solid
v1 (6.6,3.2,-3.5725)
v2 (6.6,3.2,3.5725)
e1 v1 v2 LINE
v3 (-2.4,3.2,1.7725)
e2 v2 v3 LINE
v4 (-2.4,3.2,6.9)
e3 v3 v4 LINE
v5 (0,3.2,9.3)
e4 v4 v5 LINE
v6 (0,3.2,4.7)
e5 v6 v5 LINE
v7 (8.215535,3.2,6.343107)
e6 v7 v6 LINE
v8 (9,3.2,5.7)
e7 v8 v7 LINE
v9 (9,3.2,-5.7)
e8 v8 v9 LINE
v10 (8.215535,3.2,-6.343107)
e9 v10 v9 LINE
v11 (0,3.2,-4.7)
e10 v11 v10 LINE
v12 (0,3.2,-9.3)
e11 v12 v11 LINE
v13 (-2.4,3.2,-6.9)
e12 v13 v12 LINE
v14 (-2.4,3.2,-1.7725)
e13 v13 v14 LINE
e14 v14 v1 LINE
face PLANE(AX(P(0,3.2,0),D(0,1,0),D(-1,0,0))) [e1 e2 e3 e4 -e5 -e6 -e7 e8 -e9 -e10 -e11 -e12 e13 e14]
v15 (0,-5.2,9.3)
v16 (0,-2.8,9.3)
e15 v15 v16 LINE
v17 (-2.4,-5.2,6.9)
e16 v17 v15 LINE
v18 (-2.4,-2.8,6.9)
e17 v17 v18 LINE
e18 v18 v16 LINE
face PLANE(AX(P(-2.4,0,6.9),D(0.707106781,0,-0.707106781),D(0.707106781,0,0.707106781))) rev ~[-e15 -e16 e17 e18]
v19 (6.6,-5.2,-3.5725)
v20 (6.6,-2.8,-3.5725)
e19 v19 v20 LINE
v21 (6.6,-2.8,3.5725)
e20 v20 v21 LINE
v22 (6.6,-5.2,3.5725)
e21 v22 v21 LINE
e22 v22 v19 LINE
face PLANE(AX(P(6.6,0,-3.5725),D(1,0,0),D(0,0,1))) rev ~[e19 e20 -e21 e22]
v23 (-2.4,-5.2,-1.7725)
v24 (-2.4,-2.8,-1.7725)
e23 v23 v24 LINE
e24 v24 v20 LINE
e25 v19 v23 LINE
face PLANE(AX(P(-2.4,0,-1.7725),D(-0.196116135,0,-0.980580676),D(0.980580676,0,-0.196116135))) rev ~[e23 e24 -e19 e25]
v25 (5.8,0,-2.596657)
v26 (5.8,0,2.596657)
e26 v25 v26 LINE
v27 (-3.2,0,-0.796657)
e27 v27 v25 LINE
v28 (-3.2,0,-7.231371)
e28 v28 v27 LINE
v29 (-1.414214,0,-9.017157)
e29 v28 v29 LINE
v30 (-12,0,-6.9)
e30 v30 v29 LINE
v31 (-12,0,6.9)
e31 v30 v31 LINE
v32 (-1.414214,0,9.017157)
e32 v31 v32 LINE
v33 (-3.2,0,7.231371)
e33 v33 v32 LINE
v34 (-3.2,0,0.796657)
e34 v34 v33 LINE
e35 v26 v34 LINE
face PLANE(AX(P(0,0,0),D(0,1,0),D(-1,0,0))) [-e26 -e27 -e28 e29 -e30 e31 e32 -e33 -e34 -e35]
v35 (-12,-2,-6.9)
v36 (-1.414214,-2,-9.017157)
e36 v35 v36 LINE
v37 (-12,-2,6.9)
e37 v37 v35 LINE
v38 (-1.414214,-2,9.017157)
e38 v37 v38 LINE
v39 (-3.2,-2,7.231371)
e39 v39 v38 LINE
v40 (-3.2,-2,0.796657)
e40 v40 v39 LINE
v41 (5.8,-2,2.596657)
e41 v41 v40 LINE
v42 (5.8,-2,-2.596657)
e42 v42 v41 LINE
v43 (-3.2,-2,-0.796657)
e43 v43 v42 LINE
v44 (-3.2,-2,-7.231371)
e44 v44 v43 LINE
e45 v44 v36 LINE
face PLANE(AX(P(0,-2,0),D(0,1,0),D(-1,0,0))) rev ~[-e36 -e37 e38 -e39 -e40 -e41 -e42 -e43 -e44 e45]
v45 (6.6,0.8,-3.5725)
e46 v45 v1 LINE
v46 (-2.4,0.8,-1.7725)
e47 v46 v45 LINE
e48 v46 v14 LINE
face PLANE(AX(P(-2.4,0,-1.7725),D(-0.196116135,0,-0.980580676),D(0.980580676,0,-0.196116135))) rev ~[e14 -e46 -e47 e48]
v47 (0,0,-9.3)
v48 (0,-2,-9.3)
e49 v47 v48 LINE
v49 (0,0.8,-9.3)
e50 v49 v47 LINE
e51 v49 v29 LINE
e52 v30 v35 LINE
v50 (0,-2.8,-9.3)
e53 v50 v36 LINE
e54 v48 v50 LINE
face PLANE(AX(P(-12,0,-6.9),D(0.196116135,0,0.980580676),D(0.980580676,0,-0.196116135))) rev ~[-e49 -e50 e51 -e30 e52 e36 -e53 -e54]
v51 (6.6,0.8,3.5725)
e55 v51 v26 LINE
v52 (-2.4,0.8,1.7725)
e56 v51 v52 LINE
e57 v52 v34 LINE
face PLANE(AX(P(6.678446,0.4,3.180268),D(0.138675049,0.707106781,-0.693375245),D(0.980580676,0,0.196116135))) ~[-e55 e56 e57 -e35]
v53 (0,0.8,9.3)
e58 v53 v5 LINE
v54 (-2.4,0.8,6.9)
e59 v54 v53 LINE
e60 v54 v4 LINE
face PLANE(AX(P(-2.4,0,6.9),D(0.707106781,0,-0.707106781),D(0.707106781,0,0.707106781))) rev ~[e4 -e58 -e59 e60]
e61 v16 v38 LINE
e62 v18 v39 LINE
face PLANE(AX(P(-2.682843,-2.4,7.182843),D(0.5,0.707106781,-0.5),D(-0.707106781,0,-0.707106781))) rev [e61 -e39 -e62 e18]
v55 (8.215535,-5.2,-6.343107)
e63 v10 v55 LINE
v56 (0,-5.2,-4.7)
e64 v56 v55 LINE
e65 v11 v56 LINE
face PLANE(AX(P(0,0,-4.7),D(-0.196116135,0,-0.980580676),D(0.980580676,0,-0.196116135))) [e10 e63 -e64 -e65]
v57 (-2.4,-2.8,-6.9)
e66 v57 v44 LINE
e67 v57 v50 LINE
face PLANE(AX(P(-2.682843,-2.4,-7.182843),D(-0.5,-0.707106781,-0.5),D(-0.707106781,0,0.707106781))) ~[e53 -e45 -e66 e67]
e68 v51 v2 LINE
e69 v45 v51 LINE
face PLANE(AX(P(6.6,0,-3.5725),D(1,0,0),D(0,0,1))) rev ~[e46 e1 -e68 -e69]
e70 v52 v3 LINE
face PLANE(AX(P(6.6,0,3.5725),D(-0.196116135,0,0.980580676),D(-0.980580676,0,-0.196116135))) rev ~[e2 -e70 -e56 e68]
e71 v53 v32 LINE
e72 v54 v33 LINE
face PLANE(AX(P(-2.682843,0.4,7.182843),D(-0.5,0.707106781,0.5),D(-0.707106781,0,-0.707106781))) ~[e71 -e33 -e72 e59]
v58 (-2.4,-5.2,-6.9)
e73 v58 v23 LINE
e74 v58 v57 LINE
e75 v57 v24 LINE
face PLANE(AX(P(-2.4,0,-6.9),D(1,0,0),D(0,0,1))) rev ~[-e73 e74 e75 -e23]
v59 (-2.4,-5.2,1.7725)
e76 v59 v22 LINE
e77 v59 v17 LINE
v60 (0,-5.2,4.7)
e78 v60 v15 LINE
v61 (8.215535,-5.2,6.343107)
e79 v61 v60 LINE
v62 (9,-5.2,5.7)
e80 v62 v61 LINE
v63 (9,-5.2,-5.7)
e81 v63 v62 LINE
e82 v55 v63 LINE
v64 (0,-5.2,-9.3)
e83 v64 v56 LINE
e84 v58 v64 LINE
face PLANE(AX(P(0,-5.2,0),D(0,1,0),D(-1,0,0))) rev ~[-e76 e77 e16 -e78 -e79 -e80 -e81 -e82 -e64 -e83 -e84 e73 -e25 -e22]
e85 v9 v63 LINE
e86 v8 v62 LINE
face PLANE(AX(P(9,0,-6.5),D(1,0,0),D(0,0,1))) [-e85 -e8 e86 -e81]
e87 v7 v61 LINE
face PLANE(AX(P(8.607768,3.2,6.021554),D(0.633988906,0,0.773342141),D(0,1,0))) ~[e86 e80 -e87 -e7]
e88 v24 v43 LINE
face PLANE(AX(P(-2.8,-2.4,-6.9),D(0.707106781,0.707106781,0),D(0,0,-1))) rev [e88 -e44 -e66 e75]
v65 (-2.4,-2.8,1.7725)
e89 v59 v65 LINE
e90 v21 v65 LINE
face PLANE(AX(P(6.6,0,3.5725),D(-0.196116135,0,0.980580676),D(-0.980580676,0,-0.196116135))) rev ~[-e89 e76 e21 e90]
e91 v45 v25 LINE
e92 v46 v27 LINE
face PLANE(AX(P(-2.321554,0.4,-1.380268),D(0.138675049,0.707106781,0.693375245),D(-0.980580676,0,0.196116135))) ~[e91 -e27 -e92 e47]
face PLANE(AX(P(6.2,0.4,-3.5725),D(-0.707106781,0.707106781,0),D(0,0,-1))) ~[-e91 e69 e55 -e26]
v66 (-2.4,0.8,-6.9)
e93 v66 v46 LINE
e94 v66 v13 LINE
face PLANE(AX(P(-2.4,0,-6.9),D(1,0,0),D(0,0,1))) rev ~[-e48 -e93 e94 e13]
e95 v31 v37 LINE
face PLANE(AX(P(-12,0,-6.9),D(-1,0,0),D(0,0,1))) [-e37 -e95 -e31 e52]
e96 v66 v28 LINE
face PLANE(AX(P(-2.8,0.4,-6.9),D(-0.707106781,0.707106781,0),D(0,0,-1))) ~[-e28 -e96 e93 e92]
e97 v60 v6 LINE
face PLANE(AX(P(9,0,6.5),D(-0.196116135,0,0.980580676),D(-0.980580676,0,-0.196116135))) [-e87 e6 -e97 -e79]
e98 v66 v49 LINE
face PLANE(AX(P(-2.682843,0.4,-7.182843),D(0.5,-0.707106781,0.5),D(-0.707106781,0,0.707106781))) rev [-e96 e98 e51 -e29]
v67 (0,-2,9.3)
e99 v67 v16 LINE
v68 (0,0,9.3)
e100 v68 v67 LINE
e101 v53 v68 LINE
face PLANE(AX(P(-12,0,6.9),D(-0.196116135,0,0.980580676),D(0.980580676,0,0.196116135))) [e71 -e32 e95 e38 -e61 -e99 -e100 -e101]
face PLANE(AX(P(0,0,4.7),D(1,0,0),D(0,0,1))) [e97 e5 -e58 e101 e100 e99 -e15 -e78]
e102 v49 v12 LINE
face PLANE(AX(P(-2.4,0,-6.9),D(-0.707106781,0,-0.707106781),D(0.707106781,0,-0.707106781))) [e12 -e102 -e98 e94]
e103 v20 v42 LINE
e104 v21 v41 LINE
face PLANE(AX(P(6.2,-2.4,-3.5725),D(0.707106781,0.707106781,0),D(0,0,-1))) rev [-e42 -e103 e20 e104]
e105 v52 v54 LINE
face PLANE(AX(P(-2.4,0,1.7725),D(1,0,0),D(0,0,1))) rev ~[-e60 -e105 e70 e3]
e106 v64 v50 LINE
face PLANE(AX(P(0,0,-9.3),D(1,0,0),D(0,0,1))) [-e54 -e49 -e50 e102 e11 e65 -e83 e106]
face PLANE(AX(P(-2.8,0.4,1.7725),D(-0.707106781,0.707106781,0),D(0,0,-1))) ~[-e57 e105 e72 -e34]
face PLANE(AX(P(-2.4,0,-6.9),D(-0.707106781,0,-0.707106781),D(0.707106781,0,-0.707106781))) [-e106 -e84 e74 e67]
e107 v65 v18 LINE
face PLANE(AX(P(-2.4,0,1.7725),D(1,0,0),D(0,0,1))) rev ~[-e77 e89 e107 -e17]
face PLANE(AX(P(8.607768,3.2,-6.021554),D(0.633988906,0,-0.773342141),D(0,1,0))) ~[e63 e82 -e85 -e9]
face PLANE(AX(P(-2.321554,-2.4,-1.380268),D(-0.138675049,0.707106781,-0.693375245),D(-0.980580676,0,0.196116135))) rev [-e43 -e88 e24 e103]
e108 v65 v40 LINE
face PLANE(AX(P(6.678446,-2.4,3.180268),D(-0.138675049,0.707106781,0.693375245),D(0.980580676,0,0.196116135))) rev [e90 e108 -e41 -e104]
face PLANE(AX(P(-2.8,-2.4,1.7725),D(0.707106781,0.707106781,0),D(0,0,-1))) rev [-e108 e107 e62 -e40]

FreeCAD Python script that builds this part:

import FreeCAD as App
import Part
import Sketcher
Q = App.Units.Quantity


def edges_at(feature, points):
    """Names of the edges that pass closest to the given points."""
    edges = feature.Shape.Edges
    near = lambda p: min(range(len(edges)), key=lambda i: edges[i].distToShape(Part.Vertex(*p))[0])
    return sorted({f"Edge{near(p) + 1}" for p in points})

doc = App.newDocument("Part")
body = doc.addObject("PartDesign::Body", "Body")

# Sketch on XZ plane
sketch1 = body.newObject("Sketcher::SketchObject", "Sketch")
sketch1.AttachmentSupport = (doc.getObject("XZ_Plane"), [""])
sketch1.MapMode = "FlatFace"
sketch1.addGeometry([
    Part.LineSegment(App.Vector(0, -4.7, 0), App.Vector(0, -9.3, 0)),  # 0
    Part.LineSegment(App.Vector(0, -9.3, 0), App.Vector(-2.4, -6.9, 0)),  # 1
    Part.LineSegment(App.Vector(-2.4, -6.9, 0), App.Vector(-2.4, -1.7725, 0)),  # 2
    Part.LineSegment(App.Vector(-2.4, -1.7725, 0), App.Vector(6.6, -3.5725, 0)),  # 3
    Part.LineSegment(App.Vector(6.6, -3.5725, 0), App.Vector(6.6, 3.5725, 0)),  # 4
    Part.LineSegment(App.Vector(6.6, 3.5725, 0), App.Vector(-2.4, 1.7725, 0)),  # 5
    Part.LineSegment(App.Vector(-2.4, 1.7725, 0), App.Vector(-2.4, 6.9, 0)),  # 6
    Part.LineSegment(App.Vector(-2.4, 6.9, 0), App.Vector(0, 9.3, 0)),  # 7
    Part.LineSegment(App.Vector(0, 9.3, 0), App.Vector(0, 4.7, 0)),  # 8
    Part.LineSegment(App.Vector(0, 4.7, 0), App.Vector(9, 6.5, 0)),  # 9
    Part.LineSegment(App.Vector(9, 6.5, 0), App.Vector(9, -6.5, 0)),  # 10
    Part.LineSegment(App.Vector(9, -6.5, 0), App.Vector(0, -4.7, 0)),  # 11
], False)
sketch1.addConstraint([
    Sketcher.Constraint("Coincident", 0, 2, 1, 1),
    Sketcher.Constraint("Coincident", 1, 2, 2, 1),
    Sketcher.Constraint("Coincident", 2, 2, 3, 1),
    Sketcher.Constraint("Coincident", 3, 2, 4, 1),
    Sketcher.Constraint("Coincident", 4, 2, 5, 1),
    Sketcher.Constraint("Coincident", 5, 2, 6, 1),
    Sketcher.Constraint("Coincident", 6, 2, 7, 1),
    Sketcher.Constraint("Coincident", 7, 2, 8, 1),
    Sketcher.Constraint("Coincident", 8, 2, 9, 1),
    Sketcher.Constraint("Coincident", 9, 2, 10, 1),
    Sketcher.Constraint("Coincident", 10, 2, 11, 1),
    Sketcher.Constraint("Coincident", 11, 2, 0, 1),
    Sketcher.Constraint("Vertical", 0),
    Sketcher.Constraint("Vertical", 2),
    Sketcher.Constraint("Vertical", 4),
    Sketcher.Constraint("Vertical", 6),
    Sketcher.Constraint("Vertical", 8),
    Sketcher.Constraint("Vertical", 10),
    Sketcher.Constraint("Symmetric", 0, 2, 7, 2, -1, 1),
    Sketcher.Constraint("Symmetric", 2, 2, 5, 2, -1),
    Sketcher.Constraint("Symmetric", 8, 2, 11, 2, -1),
    Sketcher.Constraint("Perpendicular", 1, 7),
    Sketcher.Constraint("Parallel", 5, 9),
    Sketcher.Constraint("Parallel", 3, 11),
    Sketcher.Constraint("Equal", 2, 6),
    Sketcher.Constraint("Equal", 3, 5),
    Sketcher.Constraint("Equal", 5, 9),
    Sketcher.Constraint("DistanceY", 10, 2, 10, 1, Q("13 mm")),
    Sketcher.Constraint("DistanceX", -1, 1, 9, 2, Q("9 mm")),
    Sketcher.Constraint("DistanceX", 1, 2, -1, 1, Q("2.4 mm")),
    Sketcher.Constraint("DistanceY", 0, 2, 0, 1, Q("4.6 mm")),
    Sketcher.Constraint("DistanceY", 0, 2, -1, 1, Q("9.3 mm")),
    Sketcher.Constraint("DistanceY", 4, 1, 4, 2, Q("7.145 mm")),
])
pad1 = body.newObject("PartDesign::Pad", "Pad")
pad1.Profile = sketch1
pad1.Type = "TwoLengths"
pad1.Length = 3.2
pad1.Length2 = 5.2
pad1.Reversed = True

# Sketch on XZ plane
sketch2 = body.newObject("Sketcher::SketchObject", "Sketch001")
sketch2.AttachmentSupport = (doc.getObject("XZ_Plane"), [""])
sketch2.MapMode = "FlatFace"
sketch2.addGeometry([
    Part.LineSegment(App.Vector(0, -4.7, 0), App.Vector(0, -9.3, 0)),  # 0
    Part.LineSegment(App.Vector(0, -9.3, 0), App.Vector(-12, -6.9, 0)),  # 1
    Part.LineSegment(App.Vector(-12, -6.9, 0), App.Vector(-12, 6.9, 0)),  # 2
    Part.LineSegment(App.Vector(-12, 6.9, 0), App.Vector(0, 9.3, 0)),  # 3
    Part.LineSegment(App.Vector(0, 9.3, 0), App.Vector(0, 4.7, 0)),  # 4
    Part.LineSegment(App.Vector(0, 4.7, 0), App.Vector(9, 6.5, 0)),  # 5
    Part.LineSegment(App.Vector(9, 6.5, 0), App.Vector(9, -6.5, 0)),  # 6
    Part.LineSegment(App.Vector(9, -6.5, 0), App.Vector(0, -4.7, 0)),  # 7
], False)
sketch2.addConstraint([
    Sketcher.Constraint("Coincident", 0, 2, 1, 1),
    Sketcher.Constraint("Coincident", 1, 2, 2, 1),
    Sketcher.Constraint("Coincident", 2, 2, 3, 1),
    Sketcher.Constraint("Coincident", 3, 2, 4, 1),
    Sketcher.Constraint("Coincident", 4, 2, 5, 1),
    Sketcher.Constraint("Coincident", 5, 2, 6, 1),
    Sketcher.Constraint("Coincident", 6, 2, 7, 1),
    Sketcher.Constraint("Coincident", 7, 2, 0, 1),
    Sketcher.Constraint("Vertical", 0),
    Sketcher.Constraint("Vertical", 2),
    Sketcher.Constraint("Vertical", 4),
    Sketcher.Constraint("Vertical", 6),
    Sketcher.Constraint("Symmetric", 0, 2, 3, 2, -1, 1),
    Sketcher.Constraint("Symmetric", 4, 2, 7, 2, -1),
    Sketcher.Constraint("Parallel", 3, 5),
    Sketcher.Constraint("Parallel", 1, 7),
    Sketcher.Constraint("Equal", 1, 3),
    Sketcher.Constraint("DistanceY", 6, 2, 6, 1, Q("13 mm")),
    Sketcher.Constraint("DistanceX", 1, 2, -1, 1, Q("12 mm")),
    Sketcher.Constraint("DistanceX", -1, 1, 5, 2, Q("9 mm")),
    Sketcher.Constraint("DistanceY", 0, 2, 1, 2, Q("2.4 mm")),
    Sketcher.Constraint("DistanceY", 0, 2, 3, 2, Q("18.6 mm")),
])
pad2 = body.newObject("PartDesign::Pad", "Pad001")
pad2.Profile = sketch2
pad2.Length = 2
doc.recompute()

chamfer = body.newObject("PartDesign::Chamfer", "Chamfer")
chamfer.Base = (pad2, edges_at(pad2, [(9, -1, 6.5), (9, -1, -6.5)]))
chamfer.Size = 0.8
doc.recompute()

chamfer2 = body.newObject("PartDesign::Chamfer", "Chamfer001")
chamfer2.Base = (chamfer, edges_at(chamfer, [
    (2.1, 0, -2.672),
    (6.6, 0, 0),
    (-2.4, 0, -4.336),
    (2.1, 0, 2.672),
    (-2.4, 0, 4.336),
    (-1.2, 0, 8.1),
    (-1.2, 0, -8.1),
    (-1.2, -2, 8.1),
    (-2.4, -2, 4.336),
    (2.1, -2, 2.672),
    (6.6, -2, 0),
    (2.1, -2, -2.672),
    (-2.4, -2, -4.336),
    (-1.2, -2, -8.1),
]))
chamfer2.Size = 0.8

doc.recompute()
